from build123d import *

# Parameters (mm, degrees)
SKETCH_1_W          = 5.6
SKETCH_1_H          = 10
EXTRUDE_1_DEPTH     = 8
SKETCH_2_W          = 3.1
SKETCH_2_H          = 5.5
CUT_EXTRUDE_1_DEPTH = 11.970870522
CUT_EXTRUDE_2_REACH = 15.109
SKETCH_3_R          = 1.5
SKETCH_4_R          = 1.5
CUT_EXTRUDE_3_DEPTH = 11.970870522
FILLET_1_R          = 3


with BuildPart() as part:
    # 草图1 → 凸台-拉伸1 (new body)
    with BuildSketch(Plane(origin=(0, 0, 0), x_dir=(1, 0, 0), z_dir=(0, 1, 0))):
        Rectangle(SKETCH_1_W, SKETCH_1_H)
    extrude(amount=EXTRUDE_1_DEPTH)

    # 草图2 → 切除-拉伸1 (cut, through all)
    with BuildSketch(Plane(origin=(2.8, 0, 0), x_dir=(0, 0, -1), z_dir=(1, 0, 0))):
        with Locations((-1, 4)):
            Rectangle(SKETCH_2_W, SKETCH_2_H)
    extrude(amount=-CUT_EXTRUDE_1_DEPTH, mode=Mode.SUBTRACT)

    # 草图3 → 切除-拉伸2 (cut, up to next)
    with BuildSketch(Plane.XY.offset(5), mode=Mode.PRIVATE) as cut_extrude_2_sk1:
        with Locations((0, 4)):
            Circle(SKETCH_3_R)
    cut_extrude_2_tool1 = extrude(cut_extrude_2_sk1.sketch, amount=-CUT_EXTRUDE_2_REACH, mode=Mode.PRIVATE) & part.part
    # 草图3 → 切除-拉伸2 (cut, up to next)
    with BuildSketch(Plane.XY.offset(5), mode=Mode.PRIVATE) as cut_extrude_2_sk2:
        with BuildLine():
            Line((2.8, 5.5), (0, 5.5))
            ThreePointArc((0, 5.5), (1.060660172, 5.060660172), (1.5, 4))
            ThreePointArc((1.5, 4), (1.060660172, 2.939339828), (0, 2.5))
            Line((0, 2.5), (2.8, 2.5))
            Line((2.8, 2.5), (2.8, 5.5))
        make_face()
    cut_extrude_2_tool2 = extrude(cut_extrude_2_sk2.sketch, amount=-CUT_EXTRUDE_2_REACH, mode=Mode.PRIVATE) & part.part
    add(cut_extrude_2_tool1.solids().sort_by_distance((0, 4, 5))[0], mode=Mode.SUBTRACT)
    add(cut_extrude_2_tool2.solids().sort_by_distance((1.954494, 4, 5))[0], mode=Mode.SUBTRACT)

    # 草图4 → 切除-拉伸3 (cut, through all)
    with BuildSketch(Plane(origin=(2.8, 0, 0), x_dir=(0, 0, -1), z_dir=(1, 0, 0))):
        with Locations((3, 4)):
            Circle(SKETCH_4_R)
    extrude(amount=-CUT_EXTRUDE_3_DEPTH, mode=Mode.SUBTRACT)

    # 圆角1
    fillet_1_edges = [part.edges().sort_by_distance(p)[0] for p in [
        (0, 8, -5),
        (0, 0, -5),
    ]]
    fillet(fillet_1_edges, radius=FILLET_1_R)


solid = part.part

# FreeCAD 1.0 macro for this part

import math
import FreeCAD as App
import Part
import Sketcher

V = App.Vector
Q = App.Units.Quantity


def edges_at(feature, points):
    """Names of the edges that pass closest to the given points."""
    edges = feature.Shape.Edges
    near = lambda p: min(range(len(edges)), key=lambda i: edges[i].distToShape(Part.Vertex(*p))[0])
    return sorted({f"Edge{near(p) + 1}" for p in points})


def add_polygon(sketch, points):
    """Adds a closed chain of lines whose ends are joined by coincident constraints."""
    first, n = sketch.GeometryCount, len(points)
    for a, b in zip(points, points[1:] + points[:1]):
        sketch.addGeometry(Part.LineSegment(App.Vector(*a, 0), App.Vector(*b, 0)), False)
    for i in range(n):
        sketch.addConstraint(Sketcher.Constraint("Coincident", first + i, 2, first + (i + 1) % n, 1))

doc = App.newDocument("Part")
body = doc.addObject("PartDesign::Body", "Body")

sketch1 = body.newObject("Sketcher::SketchObject", "Sketch")
sketch1.AttachmentSupport = (doc.getObject("XZ_Plane"), [""])
sketch1.MapMode = "FlatFace"
add_polygon(sketch1, [(-2.8, -5), (-2.8, 5), (2.8, 5), (2.8, -5)])
sketch1.addConstraint([
    Sketcher.Constraint("Vertical", 0),
    Sketcher.Constraint("Horizontal", 1),
    Sketcher.Constraint("Vertical", 2),
    Sketcher.Constraint("Horizontal", 3),
    Sketcher.Constraint("Symmetric", 0, 2, 2, 2, -1, 1),
    Sketcher.Constraint("DistanceY", 0, 1, 0, 2, Q("10 mm")),
    Sketcher.Constraint("DistanceX", 1, 1, 1, 2, Q("5.6 mm")),
])
pad1 = body.newObject("PartDesign::Pad", "Pad")
pad1.Profile = sketch1
pad1.Length = 8
pad1.Reversed = True

sketch2 = body.newObject("Sketcher::SketchObject", "Sketch001")
sketch2.AttachmentSupport = (doc.getObject("YZ_Plane"), [""])
sketch2.MapMode = "FlatFace"
sketch2.AttachmentOffset = App.Placement(V(0, 0, 2.8), App.Rotation())
add_polygon(sketch2, [(6.75, 2.55), (1.25, 2.55), (1.25, -0.55), (6.75, -0.55)])
sketch2.addConstraint([
    Sketcher.Constraint("Horizontal", 0),
    Sketcher.Constraint("Vertical", 1),
    Sketcher.Constraint("Horizontal", 2),
    Sketcher.Constraint("Vertical", 3),
    Sketcher.Constraint("DistanceX", 0, 2, 0, 1, Q("5.5 mm")),
    Sketcher.Constraint("DistanceY", 1, 2, 1, 1, Q("3.1 mm")),
    Sketcher.Constraint("DistanceX", -1, 1, 0, 2, Q("1.25 mm")),
    Sketcher.Constraint("DistanceY", -1, 1, 0, 2, Q("2.55 mm")),
])
pocket1 = body.newObject("PartDesign::Pocket", "Pocket")
pocket1.Profile = sketch2
pocket1.Type = "ThroughAll"

sketch3 = body.newObject("Sketcher::SketchObject", "Sketch002")
sketch3.AttachmentSupport = (doc.getObject("XY_Plane"), [""])
sketch3.MapMode = "FlatFace"
sketch3.AttachmentOffset = App.Placement(V(0, 0, 5), App.Rotation())
sketch3.addGeometry(Part.Circle(V(0, 4, 0), V(0, 0, 1), 1.5), False)
sketch3.addConstraint([
    Sketcher.Constraint("PointOnObject", 0, 3, -2),
    Sketcher.Constraint("Diameter", 0, Q("3 mm")),
    Sketcher.Constraint("DistanceY", -1, 1, 0, 3, Q("4 mm")),
])
pocket2 = body.newObject("PartDesign::Pocket", "Pocket001")
pocket2.Profile = sketch3
pocket2.Type = "UpToFirst"

sketch4 = body.newObject("Sketcher::SketchObject", "Sketch003")
sketch4.AttachmentSupport = (doc.getObject("XY_Plane"), [""])
sketch4.MapMode = "FlatFace"
sketch4.AttachmentOffset = App.Placement(V(0, 0, 5), App.Rotation())
sketch4.addGeometry([
    Part.LineSegment(V(2.8, 5.5, 0), V(0, 5.5, 0)),
    Part.ArcOfCircle(Part.Circle(V(0, 4, 0), V(0, 0, 1), 1.5), math.radians(0), math.radians(90)),
    Part.ArcOfCircle(Part.Circle(V(0, 4, 0), V(0, 0, 1), 1.5), math.radians(-90), math.radians(0)),
    Part.LineSegment(V(0, 2.5, 0), V(2.8, 2.5, 0)),
    Part.LineSegment(V(2.8, 2.5, 0), V(2.8, 5.5, 0)),
], False)
sketch4.addConstraint([
    Sketcher.Constraint("Tangent", 0, 2, 1, 2),
    Sketcher.Constraint("Tangent", 1, 1, 2, 2),
    Sketcher.Constraint("Tangent", 2, 1, 3, 1),
    Sketcher.Constraint("Coincident", 3, 2, 4, 1),
    Sketcher.Constraint("Coincident", 4, 2, 0, 1),
    Sketcher.Constraint("Horizontal", 0),
    Sketcher.Constraint("Horizontal", 3),
    Sketcher.Constraint("Vertical", 4),
    Sketcher.Constraint("Equal", 1, 2),
    Sketcher.Constraint("PointOnObject", 1, 3, -2),
    Sketcher.Constraint("Horizontal", 2, 3, 1, 1),
    Sketcher.Constraint("Radius", 1, Q("1.5 mm")),
    Sketcher.Constraint("DistanceX", 0, 2, 0, 1, Q("2.8 mm")),
    Sketcher.Constraint("DistanceY", -1, 1, 1, 3, Q("4 mm")),
])
pocket3 = body.newObject("PartDesign::Pocket", "Pocket002")
pocket3.Profile = sketch4
pocket3.Type = "UpToFirst"

sketch5 = body.newObject("Sketcher::SketchObject", "Sketch004")
sketch5.AttachmentSupport = (doc.getObject("YZ_Plane"), [""])
sketch5.MapMode = "FlatFace"
sketch5.AttachmentOffset = App.Placement(V(0, 0, 2.8), App.Rotation())
sketch5.addGeometry(Part.Circle(V(4, -3, 0), V(0, 0, 1), 1.5), False)
sketch5.addConstraint([
    Sketcher.Constraint("Diameter", 0, Q("3 mm")),
    Sketcher.Constraint("DistanceX", -1, 1, 0, 3, Q("4 mm")),
    Sketcher.Constraint("DistanceY", 0, 3, -1, 1, Q("3 mm")),
])
pocket4 = body.newObject("PartDesign::Pocket", "Pocket003")
pocket4.Profile = sketch5
pocket4.Type = "ThroughAll"
doc.recompute()

fillet = body.newObject("PartDesign::Fillet", "Fillet")
fillet.Base = (pocket4, edges_at(pocket4, [(0, 8, -5), (0, 0, -5)]))
fillet.Radius = 3

doc.recompute()
